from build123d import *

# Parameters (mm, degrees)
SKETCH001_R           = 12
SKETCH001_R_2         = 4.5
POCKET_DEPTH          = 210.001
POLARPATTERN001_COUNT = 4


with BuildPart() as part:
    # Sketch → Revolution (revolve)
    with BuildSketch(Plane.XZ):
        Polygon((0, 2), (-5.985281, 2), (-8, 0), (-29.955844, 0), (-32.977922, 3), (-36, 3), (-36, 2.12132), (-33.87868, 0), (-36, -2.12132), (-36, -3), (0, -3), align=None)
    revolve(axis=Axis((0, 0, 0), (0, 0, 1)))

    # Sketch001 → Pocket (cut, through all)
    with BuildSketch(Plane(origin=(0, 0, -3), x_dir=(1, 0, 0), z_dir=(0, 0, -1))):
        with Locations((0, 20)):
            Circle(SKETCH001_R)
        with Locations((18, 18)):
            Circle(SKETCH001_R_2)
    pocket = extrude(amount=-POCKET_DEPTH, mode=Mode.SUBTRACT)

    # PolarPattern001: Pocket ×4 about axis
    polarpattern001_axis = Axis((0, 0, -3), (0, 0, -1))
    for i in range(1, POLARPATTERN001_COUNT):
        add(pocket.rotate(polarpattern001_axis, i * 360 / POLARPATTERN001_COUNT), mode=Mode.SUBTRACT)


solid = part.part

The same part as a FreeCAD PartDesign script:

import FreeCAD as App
import Part
import Sketcher
from FreeCAD import Vector


def add_polygon(sketch, points):
    """Adds a closed chain of lines whose ends are joined by coincident constraints."""
    first, n = sketch.GeometryCount, len(points)
    for a, b in zip(points, points[1:] + points[:1]):
        sketch.addGeometry(Part.LineSegment(App.Vector(*a, 0), App.Vector(*b, 0)), False)
    for i in range(n):
        sketch.addConstraint(Sketcher.Constraint("Coincident", first + i, 2, first + (i + 1) % n, 1))

doc = App.newDocument("Part")
params = doc.addObject("Spreadsheet::Sheet", "Params")
for row, (alias, value) in enumerate([
    ("sketch1_width", "36 mm"),
    ("sketch1_height", "5 mm"),
    ("sketch1_length", "3 mm"),
    ("revolution_angle", "360 deg"),
    ("sketch2_diameter", "24 mm"),
    ("sketch2_diameter2", "9 mm"),
], start=1):
    params.set(f"A{row}", alias)
    params.set(f"B{row}", "=" + value)
    params.setAlias(f"B{row}", alias)

body = doc.addObject("PartDesign::Body", "Body")

sketch1 = doc.addObject("Sketcher::SketchObject", "Sketch")
body.addObject(sketch1)
sketch1.AttachmentSupport = (doc.XZ_Plane, [""])
sketch1.MapMode = "FlatFace"
add_polygon(sketch1, [(0, 2), (-5.985281, 2), (-8, 0), (-29.955844, 0), (-32.977922, 3), (-36, 3), (-36, 2.12132), (-33.87868, 0), (-36, -2.12132), (-36, -3), (0, -3)])
sketch1.addConstraint([
    Sketcher.Constraint("Horizontal", 0),
    Sketcher.Constraint("Horizontal", 2),
    Sketcher.Constraint("Horizontal", 4),
    Sketcher.Constraint("Vertical", 5),
    Sketcher.Constraint("Vertical", 8),
    Sketcher.Constraint("Horizontal", 9),
    Sketcher.Constraint("Vertical", 10),
    Sketcher.Constraint("Symmetric", 5, 2, 7, 2, -1),
    Sketcher.Constraint("PointOnObject", 1, 2, -1),
    Sketcher.Constraint("PointOnObject", 6, 2, -1),
    Sketcher.Constraint("PointOnObject", 9, 2, -2),
    Sketcher.Constraint("Perpendicular", 6, 7),
    Sketcher.Constraint("Equal", 5, 8),
    Sketcher.Constraint("DistanceX", 9, 1, 9, 2, 36.0),
    Sketcher.Constraint("DistanceY", 10, 1, 10, 2, 5.0),
    Sketcher.Constraint("Distance", 6, 3.0),
    Sketcher.Constraint("DistanceY", -1, 1, 0, 2, 2.0),
    Sketcher.Constraint("DistanceX", 1, 2, -1, 1, 8.0),
    Sketcher.Constraint("DistanceX", 0, 2, 0, 1, 5.985281),
    Sketcher.Constraint("DistanceX", 4, 2, 4, 1, 3.022078),
    Sketcher.Constraint("Distance", 3, 4.258281),
])
sketch1.setExpression("Constraints[24]", "Params.sketch1_width")
sketch1.setExpression("Constraints[25]", "Params.sketch1_height")
sketch1.setExpression("Constraints[26]", "Params.sketch1_length")
revolution = doc.addObject("PartDesign::Revolution", "Revolution")
body.addObject(revolution)
revolution.Profile = sketch1
revolution.ReferenceAxis = (sketch1, ["V_Axis"])
revolution.setExpression("Angle", "Params.revolution_angle")

sketch2 = doc.addObject("Sketcher::SketchObject", "Sketch001")
body.addObject(sketch2)
sketch2.AttachmentSupport = (doc.XY_Plane, [""])
sketch2.MapMode = "FlatFace"
sketch2.AttachmentOffset = App.Placement(Vector(0, 0, -3), App.Rotation())
sketch2.addGeometry([
    Part.Circle(Vector(0, -20, 0), Vector(0, 0, 1), 12),
    Part.Circle(Vector(18, -18, 0), Vector(0, 0, 1), 4.5),
], False)
sketch2.addConstraint([
    Sketcher.Constraint("PointOnObject", 0, 3, -2),
    Sketcher.Constraint("Diameter", 0, 24.0),
    Sketcher.Constraint("Diameter", 1, 9.0),
    Sketcher.Constraint("DistanceY", 0, 3, -1, 1, 20.0),
    Sketcher.Constraint("DistanceX", -1, 1, 1, 3, 18.0),
    Sketcher.Constraint("DistanceY", 1, 3, -1, 1, 18.0),
])
sketch2.setExpression("Constraints[1]", "Params.sketch2_diameter")
sketch2.setExpression("Constraints[2]", "Params.sketch2_diameter2")
pocket1 = doc.addObject("PartDesign::Pocket", "Pocket")
body.addObject(pocket1)
pocket1.Profile = sketch2
pocket1.Type = "ThroughAll"
pocket1.Reversed = True
doc.recompute()

polarpattern = doc.addObject("PartDesign::PolarPattern", "PolarPattern")
body.addObject(polarpattern)
polarpattern.Originals = [pocket1]
polarpattern.Axis = (doc.Z_Axis, [""])
polarpattern.Angle = 360
polarpattern.Occurrences = 4
body.Tip = polarpattern

doc.recompute()
